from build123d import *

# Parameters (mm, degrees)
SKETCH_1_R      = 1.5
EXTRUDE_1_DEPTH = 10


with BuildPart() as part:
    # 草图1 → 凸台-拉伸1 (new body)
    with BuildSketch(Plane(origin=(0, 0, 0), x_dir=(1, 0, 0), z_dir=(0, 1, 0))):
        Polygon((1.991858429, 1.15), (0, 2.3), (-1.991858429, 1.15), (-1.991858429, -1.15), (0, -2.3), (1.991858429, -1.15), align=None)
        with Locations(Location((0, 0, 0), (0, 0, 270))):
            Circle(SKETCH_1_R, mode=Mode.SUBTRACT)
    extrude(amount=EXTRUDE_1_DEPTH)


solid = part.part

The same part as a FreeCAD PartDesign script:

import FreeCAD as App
import Part
import Sketcher
Q = App.Units.Quantity

doc = App.newDocument("Part")
params = doc.addObject("Spreadsheet::Sheet", "Params")
for row, (alias, value) in enumerate([
    ("sketch1_diameter", "3 mm"),
    ("sketch1_height", "2.3 mm"),
    ("sketch1_length", "2.3 mm"),
    ("pad1_length", "10 mm"),
], start=1):
    params.set(f"A{row}", alias)
    params.set(f"B{row}", "=" + value)
    params.setAlias(f"B{row}", alias)

body = doc.addObject("PartDesign::Body", "Body")

sketch1 = doc.addObject("Sketcher::SketchObject", "Sketch")
body.addObject(sketch1)
sketch1.AttachmentSupport = (doc.XZ_Plane, [""])
sketch1.MapMode = "FlatFace"
sketch1.addGeometry([
    Part.LineSegment(App.Vector(2, -1.1, 0), App.Vector(0, -2.3, 0)),
    Part.LineSegment(App.Vector(0, -2.3, 0), App.Vector(-2, -1.1, 0)),
    Part.LineSegment(App.Vector(-2, -1.1, 0), App.Vector(-2, 1.1, 0)),
    Part.LineSegment(App.Vector(-2, 1.1, 0), App.Vector(0, 2.3, 0)),
    Part.LineSegment(App.Vector(0, 2.3, 0), App.Vector(2, 1.1, 0)),
    Part.LineSegment(App.Vector(2, 1.1, 0), App.Vector(2, -1.1, 0)),
    Part.Circle(App.Vector(0, 0, 0), App.Vector(0, 0, 1), 1.5),
], False)
sketch1.addConstraint([
    Sketcher.Constraint("Coincident", 0, 2, 1, 1),
    Sketcher.Constraint("Coincident", 1, 2, 2, 1),
    Sketcher.Constraint("Coincident", 2, 2, 3, 1),
    Sketcher.Constraint("Coincident", 3, 2, 4, 1),
    Sketcher.Constraint("Coincident", 4, 2, 5, 1),
    Sketcher.Constraint("Coincident", 5, 2, 0, 1),
    Sketcher.Constraint("Vertical", 2),
    Sketcher.Constraint("Vertical", 5),
    Sketcher.Constraint("Coincident", 6, 3, -1, 1),
    Sketcher.Constraint("Symmetric", 0, 2, 3, 2, -1, 1),
    Sketcher.Constraint("Symmetric", 1, 2, 4, 2, -1, 1),
    Sketcher.Constraint("PointOnObject", 0, 2, -2),
    Sketcher.Constraint("Parallel", 0, 3),
    Sketcher.Constraint("Horizontal", 2, 2, 4, 2),
    Sketcher.Constraint("Diameter", 6, 3.0),
    Sketcher.Constraint("Angle", 0, Q("-150 deg")),
    Sketcher.Constraint("DistanceY", 2, 1, 2, 2, 2.3),
    Sketcher.Constraint("Distance", 0, 2.3),
])
sketch1.setExpression("Constraints[14]", "Params.sketch1_diameter")
sketch1.setExpression("Constraints[16]", "Params.sketch1_height")
sketch1.setExpression("Constraints[17]", "Params.sketch1_length")
pad1 = doc.addObject("PartDesign::Pad", "Pad")
body.addObject(pad1)
pad1.Profile = sketch1
pad1.setExpression("Length", "Params.pad1_length")
pad1.Reversed = True

doc.recompute()
